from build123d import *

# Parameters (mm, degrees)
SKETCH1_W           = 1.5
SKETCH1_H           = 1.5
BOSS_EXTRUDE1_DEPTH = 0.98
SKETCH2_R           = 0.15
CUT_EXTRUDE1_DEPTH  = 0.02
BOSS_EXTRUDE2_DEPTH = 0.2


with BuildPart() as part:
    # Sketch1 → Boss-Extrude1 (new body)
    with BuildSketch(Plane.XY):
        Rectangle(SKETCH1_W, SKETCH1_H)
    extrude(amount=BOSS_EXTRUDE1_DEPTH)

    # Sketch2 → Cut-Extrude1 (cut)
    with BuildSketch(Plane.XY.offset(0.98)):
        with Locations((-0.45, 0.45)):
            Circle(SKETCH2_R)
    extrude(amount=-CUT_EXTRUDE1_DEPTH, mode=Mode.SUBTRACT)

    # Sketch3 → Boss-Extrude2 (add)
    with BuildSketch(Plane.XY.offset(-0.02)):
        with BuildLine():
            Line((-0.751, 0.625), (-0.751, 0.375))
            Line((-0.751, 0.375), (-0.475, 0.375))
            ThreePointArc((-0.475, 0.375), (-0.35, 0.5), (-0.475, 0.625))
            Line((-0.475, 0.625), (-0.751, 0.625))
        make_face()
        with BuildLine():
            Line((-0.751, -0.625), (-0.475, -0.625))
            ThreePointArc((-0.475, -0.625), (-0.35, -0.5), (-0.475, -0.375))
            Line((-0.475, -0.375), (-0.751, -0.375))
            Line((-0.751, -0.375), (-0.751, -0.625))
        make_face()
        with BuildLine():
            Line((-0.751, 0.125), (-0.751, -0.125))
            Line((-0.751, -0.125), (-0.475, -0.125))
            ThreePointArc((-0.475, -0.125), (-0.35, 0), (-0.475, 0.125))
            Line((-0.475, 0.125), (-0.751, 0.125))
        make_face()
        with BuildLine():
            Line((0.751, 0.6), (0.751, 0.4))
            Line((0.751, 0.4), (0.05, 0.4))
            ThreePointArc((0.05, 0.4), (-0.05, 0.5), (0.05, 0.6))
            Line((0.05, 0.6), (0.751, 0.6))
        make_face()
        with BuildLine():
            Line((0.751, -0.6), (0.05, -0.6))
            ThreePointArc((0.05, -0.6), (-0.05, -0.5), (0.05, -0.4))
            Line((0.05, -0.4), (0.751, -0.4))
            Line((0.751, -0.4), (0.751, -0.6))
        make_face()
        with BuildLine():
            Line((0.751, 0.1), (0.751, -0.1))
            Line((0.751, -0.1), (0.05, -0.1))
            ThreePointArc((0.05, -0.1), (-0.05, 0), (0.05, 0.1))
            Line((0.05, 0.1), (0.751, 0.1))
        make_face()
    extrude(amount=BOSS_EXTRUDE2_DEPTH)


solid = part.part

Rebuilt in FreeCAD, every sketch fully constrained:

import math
import FreeCAD as App
import Part
import Sketcher
from FreeCAD import Vector
Q = App.Units.Quantity

doc = App.newDocument("Part")
params = doc.addObject("Spreadsheet::Sheet", "Params")
for row, (alias, value) in enumerate([
    ("sketch1_width", "1.5 mm"),
    ("pad1_length", "0.98 mm"),
    ("sketch2_diameter", "0.3 mm"),
    ("pocket1_length", "0.02 mm"),
    ("sketch3_radius", "0.1 mm"),
    ("pad2_length", "0.2 mm"),
], start=1):
    params.set(f"A{row}", alias)
    params.set(f"B{row}", "=" + value)
    params.setAlias(f"B{row}", alias)

body = doc.addObject("PartDesign::Body", "Body")

sketch1 = doc.addObject("Sketcher::SketchObject", "Sketch")
body.addObject(sketch1)
sketch1.AttachmentSupport = (doc.XY_Plane, [""])
sketch1.MapMode = "FlatFace"
sketch1.addGeometry([
    Part.LineSegment(Vector(-0.8, 0.8, 0), Vector(-0.8, -0.8, 0)),
    Part.LineSegment(Vector(-0.8, -0.8, 0), Vector(0.8, -0.8, 0)),
    Part.LineSegment(Vector(0.8, -0.8, 0), Vector(0.8, 0.8, 0)),
    Part.LineSegment(Vector(0.8, 0.8, 0), Vector(-0.8, 0.8, 0)),
], False)
sketch1.addConstraint([
    Sketcher.Constraint("Coincident", 0, 2, 1, 1),
    Sketcher.Constraint("Coincident", 1, 2, 2, 1),
    Sketcher.Constraint("Coincident", 2, 2, 3, 1),
    Sketcher.Constraint("Coincident", 3, 2, 0, 1),
    Sketcher.Constraint("Vertical", 0),
    Sketcher.Constraint("Horizontal", 1),
    Sketcher.Constraint("Vertical", 2),
    Sketcher.Constraint("Horizontal", 3),
    Sketcher.Constraint("Symmetric", 0, 2, 2, 2, -1, 1),
    Sketcher.Constraint("Equal", 3, 0),
    Sketcher.Constraint("DistanceX", 1, 1, 1, 2, Q("1.5 mm")),
])
sketch1.setExpression("Constraints[10]", "Params.sketch1_width")
pad1 = doc.addObject("PartDesign::Pad", "Pad")
body.addObject(pad1)
pad1.Profile = sketch1
pad1.setExpression("Length", "Params.pad1_length")

sketch2 = doc.addObject("Sketcher::SketchObject", "Sketch001")
body.addObject(sketch2)
sketch2.AttachmentSupport = (doc.XY_Plane, [""])
sketch2.MapMode = "FlatFace"
sketch2.AttachmentOffset = App.Placement(Vector(0, 0, 0.98), App.Rotation())
sketch2.addGeometry(Part.Circle(Vector(-0.45, 0.45, 0), Vector(0, 0, 1), 0.15), False)
sketch2.addConstraint([
    Sketcher.Constraint("Diameter", 0, Q("0.3 mm")),
    Sketcher.Constraint("DistanceX", 0, 3, -1, 1, Q("0.45 mm")),
    Sketcher.Constraint("DistanceY", -1, 1, 0, 3, Q("0.45 mm")),
])
sketch2.setExpression("Constraints[0]", "Params.sketch2_diameter")
pocket1 = doc.addObject("PartDesign::Pocket", "Pocket")
body.addObject(pocket1)
pocket1.Profile = sketch2
pocket1.setExpression("Length", "Params.pocket1_length")

sketch3 = doc.addObject("Sketcher::SketchObject", "Sketch002")
body.addObject(sketch3)
sketch3.AttachmentSupport = (doc.XY_Plane, [""])
sketch3.MapMode = "FlatFace"
sketch3.AttachmentOffset = App.Placement(Vector(0, 0, -0.02), App.Rotation())
sketch3.addGeometry([
    Part.LineSegment(Vector(-0.75, 0.62, 0), Vector(-0.75, 0.38, 0)),
    Part.LineSegment(Vector(-0.75, 0.38, 0), Vector(-0.47, 0.38, 0)),
    Part.ArcOfCircle(Part.Circle(Vector(-0.47, 0.5, 0), Vector(0, 0, 1), 0.12), math.radians(-90), math.radians(90)),
    Part.LineSegment(Vector(-0.47, 0.62, 0), Vector(-0.75, 0.62, 0)),
    Part.LineSegment(Vector(-0.75, -0.62, 0), Vector(-0.47, -0.62, 0)),
    Part.ArcOfCircle(Part.Circle(Vector(-0.47, -0.5, 0), Vector(0, 0, 1), 0.12), math.radians(-90), math.radians(90)),
    Part.LineSegment(Vector(-0.47, -0.38, 0), Vector(-0.75, -0.38, 0)),
    Part.LineSegment(Vector(-0.75, -0.38, 0), Vector(-0.75, -0.62, 0)),
    Part.LineSegment(Vector(-0.75, 0.12, 0), Vector(-0.75, -0.12, 0)),
    Part.LineSegment(Vector(-0.75, -0.12, 0), Vector(-0.47, -0.12, 0)),
    Part.ArcOfCircle(Part.Circle(Vector(-0.47, 0, 0), Vector(0, 0, 1), 0.12), math.radians(-90), math.radians(90)),
    Part.LineSegment(Vector(-0.47, 0.12, 0), Vector(-0.75, 0.12, 0)),
    Part.LineSegment(Vector(0.75, 0.4, 0), Vector(0.75, 0.6, 0)),
    Part.LineSegment(Vector(0.75, 0.6, 0), Vector(0.05, 0.6, 0)),
    Part.ArcOfCircle(Part.Circle(Vector(0.05, 0.5, 0), Vector(0, 0, 1), 0.1), math.radians(90), math.radians(270)),
    Part.LineSegment(Vector(0.05, 0.4, 0), Vector(0.75, 0.4, 0)),
    Part.LineSegment(Vector(0.05, -0.6, 0), Vector(0.75, -0.6, 0)),
    Part.LineSegment(Vector(0.75, -0.6, 0), Vector(0.75, -0.4, 0)),
    Part.LineSegment(Vector(0.75, -0.4, 0), Vector(0.05, -0.4, 0)),
    Part.ArcOfCircle(Part.Circle(Vector(0.05, -0.5, 0), Vector(0, 0, 1), 0.1), math.radians(90), math.radians(270)),
    Part.LineSegment(Vector(0.75, -0.1, 0), Vector(0.75, 0.1, 0)),
    Part.LineSegment(Vector(0.75, 0.1, 0), Vector(0.05, 0.1, 0)),
    Part.ArcOfCircle(Part.Circle(Vector(0.05, 0, 0), Vector(0, 0, 1), 0.1), math.radians(90), math.radians(270)),
    Part.LineSegment(Vector(0.05, -0.1, 0), Vector(0.75, -0.1, 0)),
], False)
sketch3.addConstraint([
    Sketcher.Constraint("Coincident", 0, 2, 1, 1),
    Sketcher.Constraint("Tangent", 1, 2, 2, 1),
    Sketcher.Constraint("Tangent", 2, 2, 3, 1),
    Sketcher.Constraint("Coincident", 3, 2, 0, 1),
    Sketcher.Constraint("Tangent", 4, 2, 5, 1),
    Sketcher.Constraint("Tangent", 5, 2, 6, 1),
    Sketcher.Constraint("Coincident", 6, 2, 7, 1),
    Sketcher.Constraint("Coincident", 7, 2, 4, 1),
    Sketcher.Constraint("Coincident", 8, 2, 9, 1),
    Sketcher.Constraint("Tangent", 9, 2, 10, 1),
    Sketcher.Constraint("Tangent", 10, 2, 11, 1),
    Sketcher.Constraint("Coincident", 11, 2, 8, 1),
    Sketcher.Constraint("Coincident", 12, 2, 13, 1),
    Sketcher.Constraint("Tangent", 13, 2, 14, 1),
    Sketcher.Constraint("Tangent", 14, 2, 15, 1),
    Sketcher.Constraint("Coincident", 15, 2, 12, 1),
    Sketcher.Constraint("Coincident", 16, 2, 17, 1),
    Sketcher.Constraint("Coincident", 17, 2, 18, 1),
    Sketcher.Constraint("Tangent", 18, 2, 19, 1),
    Sketcher.Constraint("Tangent", 19, 2, 16, 1),
    Sketcher.Constraint("Coincident", 20, 2, 21, 1),
    Sketcher.Constraint("Tangent", 21, 2, 22, 1),
    Sketcher.Constraint("Tangent", 22, 2, 23, 1),
    Sketcher.Constraint("Coincident", 23, 2, 20, 1),
    Sketcher.Constraint("Vertical", 0),
    Sketcher.Constraint("Horizontal", 1),
    Sketcher.Constraint("Horizontal", 3),
    Sketcher.Constraint("Horizontal", 4),
    Sketcher.Constraint("Horizontal", 6),
    Sketcher.Constraint("Vertical", 7),
    Sketcher.Constraint("Vertical", 8),
    Sketcher.Constraint("Horizontal", 9),
    Sketcher.Constraint("Horizontal", 11),
    Sketcher.Constraint("Vertical", 12),
    Sketcher.Constraint("Horizontal", 13),
    Sketcher.Constraint("Horizontal", 15),
    Sketcher.Constraint("Horizontal", 16),
    Sketcher.Constraint("Vertical", 17),
    Sketcher.Constraint("Horizontal", 18),
    Sketcher.Constraint("Vertical", 20),
    Sketcher.Constraint("Horizontal", 21),
    Sketcher.Constraint("Horizontal", 23),
    Sketcher.Constraint("Equal", 2, 5),
    Sketcher.Constraint("Equal", 5, 10),
    Sketcher.Constraint("Equal", 14, 19),
    Sketcher.Constraint("Equal", 19, 22),
    Sketcher.Constraint("Symmetric", 2, 3, 5, 3, -1),
    Sketcher.Constraint("Symmetric", 14, 3, 19, 3, -1),
    Sketcher.Constraint("PointOnObject", 10, 3, -1),
    Sketcher.Constraint("PointOnObject", 22, 3, -1),
    Sketcher.Constraint("Horizontal", 2, 3, 14, 3),
    Sketcher.Constraint("Vertical", 5, 3, 10, 3),
    Sketcher.Constraint("Vertical", 19, 3, 22, 3),
    Sketcher.Constraint("Vertical", 3, 2, 6, 2),
    Sketcher.Constraint("Vertical", 7, 2, 8, 2),
    Sketcher.Constraint("Vertical", 15, 2, 16, 2),
    Sketcher.Constraint("Vertical", 17, 2, 20, 2),
    Sketcher.Constraint("Radius", 14, Q("0.1 mm")),
    Sketcher.Constraint("Radius", 2, Q("0.125 mm")),
    Sketcher.Constraint("DistanceY", 5, 3, 2, 3, Q("1 mm")),
    Sketcher.Constraint("DistanceX", 1, 1, 1, 2, Q("0.276 mm")),
    Sketcher.Constraint("DistanceX", 13, 2, 13, 1, Q("0.701 mm")),
    Sketcher.Constraint("DistanceX", -1, 1, 14, 3, Q("0.05 mm")),
    Sketcher.Constraint("DistanceX", 2, 3, -1, 1, Q("0.475 mm")),
])
sketch3.setExpression("Constraints[57]", "Params.sketch3_radius")
pad2 = doc.addObject("PartDesign::Pad", "Pad001")
body.addObject(pad2)
pad2.Profile = sketch3
pad2.setExpression("Length", "Params.pad2_length")

doc.recompute()
